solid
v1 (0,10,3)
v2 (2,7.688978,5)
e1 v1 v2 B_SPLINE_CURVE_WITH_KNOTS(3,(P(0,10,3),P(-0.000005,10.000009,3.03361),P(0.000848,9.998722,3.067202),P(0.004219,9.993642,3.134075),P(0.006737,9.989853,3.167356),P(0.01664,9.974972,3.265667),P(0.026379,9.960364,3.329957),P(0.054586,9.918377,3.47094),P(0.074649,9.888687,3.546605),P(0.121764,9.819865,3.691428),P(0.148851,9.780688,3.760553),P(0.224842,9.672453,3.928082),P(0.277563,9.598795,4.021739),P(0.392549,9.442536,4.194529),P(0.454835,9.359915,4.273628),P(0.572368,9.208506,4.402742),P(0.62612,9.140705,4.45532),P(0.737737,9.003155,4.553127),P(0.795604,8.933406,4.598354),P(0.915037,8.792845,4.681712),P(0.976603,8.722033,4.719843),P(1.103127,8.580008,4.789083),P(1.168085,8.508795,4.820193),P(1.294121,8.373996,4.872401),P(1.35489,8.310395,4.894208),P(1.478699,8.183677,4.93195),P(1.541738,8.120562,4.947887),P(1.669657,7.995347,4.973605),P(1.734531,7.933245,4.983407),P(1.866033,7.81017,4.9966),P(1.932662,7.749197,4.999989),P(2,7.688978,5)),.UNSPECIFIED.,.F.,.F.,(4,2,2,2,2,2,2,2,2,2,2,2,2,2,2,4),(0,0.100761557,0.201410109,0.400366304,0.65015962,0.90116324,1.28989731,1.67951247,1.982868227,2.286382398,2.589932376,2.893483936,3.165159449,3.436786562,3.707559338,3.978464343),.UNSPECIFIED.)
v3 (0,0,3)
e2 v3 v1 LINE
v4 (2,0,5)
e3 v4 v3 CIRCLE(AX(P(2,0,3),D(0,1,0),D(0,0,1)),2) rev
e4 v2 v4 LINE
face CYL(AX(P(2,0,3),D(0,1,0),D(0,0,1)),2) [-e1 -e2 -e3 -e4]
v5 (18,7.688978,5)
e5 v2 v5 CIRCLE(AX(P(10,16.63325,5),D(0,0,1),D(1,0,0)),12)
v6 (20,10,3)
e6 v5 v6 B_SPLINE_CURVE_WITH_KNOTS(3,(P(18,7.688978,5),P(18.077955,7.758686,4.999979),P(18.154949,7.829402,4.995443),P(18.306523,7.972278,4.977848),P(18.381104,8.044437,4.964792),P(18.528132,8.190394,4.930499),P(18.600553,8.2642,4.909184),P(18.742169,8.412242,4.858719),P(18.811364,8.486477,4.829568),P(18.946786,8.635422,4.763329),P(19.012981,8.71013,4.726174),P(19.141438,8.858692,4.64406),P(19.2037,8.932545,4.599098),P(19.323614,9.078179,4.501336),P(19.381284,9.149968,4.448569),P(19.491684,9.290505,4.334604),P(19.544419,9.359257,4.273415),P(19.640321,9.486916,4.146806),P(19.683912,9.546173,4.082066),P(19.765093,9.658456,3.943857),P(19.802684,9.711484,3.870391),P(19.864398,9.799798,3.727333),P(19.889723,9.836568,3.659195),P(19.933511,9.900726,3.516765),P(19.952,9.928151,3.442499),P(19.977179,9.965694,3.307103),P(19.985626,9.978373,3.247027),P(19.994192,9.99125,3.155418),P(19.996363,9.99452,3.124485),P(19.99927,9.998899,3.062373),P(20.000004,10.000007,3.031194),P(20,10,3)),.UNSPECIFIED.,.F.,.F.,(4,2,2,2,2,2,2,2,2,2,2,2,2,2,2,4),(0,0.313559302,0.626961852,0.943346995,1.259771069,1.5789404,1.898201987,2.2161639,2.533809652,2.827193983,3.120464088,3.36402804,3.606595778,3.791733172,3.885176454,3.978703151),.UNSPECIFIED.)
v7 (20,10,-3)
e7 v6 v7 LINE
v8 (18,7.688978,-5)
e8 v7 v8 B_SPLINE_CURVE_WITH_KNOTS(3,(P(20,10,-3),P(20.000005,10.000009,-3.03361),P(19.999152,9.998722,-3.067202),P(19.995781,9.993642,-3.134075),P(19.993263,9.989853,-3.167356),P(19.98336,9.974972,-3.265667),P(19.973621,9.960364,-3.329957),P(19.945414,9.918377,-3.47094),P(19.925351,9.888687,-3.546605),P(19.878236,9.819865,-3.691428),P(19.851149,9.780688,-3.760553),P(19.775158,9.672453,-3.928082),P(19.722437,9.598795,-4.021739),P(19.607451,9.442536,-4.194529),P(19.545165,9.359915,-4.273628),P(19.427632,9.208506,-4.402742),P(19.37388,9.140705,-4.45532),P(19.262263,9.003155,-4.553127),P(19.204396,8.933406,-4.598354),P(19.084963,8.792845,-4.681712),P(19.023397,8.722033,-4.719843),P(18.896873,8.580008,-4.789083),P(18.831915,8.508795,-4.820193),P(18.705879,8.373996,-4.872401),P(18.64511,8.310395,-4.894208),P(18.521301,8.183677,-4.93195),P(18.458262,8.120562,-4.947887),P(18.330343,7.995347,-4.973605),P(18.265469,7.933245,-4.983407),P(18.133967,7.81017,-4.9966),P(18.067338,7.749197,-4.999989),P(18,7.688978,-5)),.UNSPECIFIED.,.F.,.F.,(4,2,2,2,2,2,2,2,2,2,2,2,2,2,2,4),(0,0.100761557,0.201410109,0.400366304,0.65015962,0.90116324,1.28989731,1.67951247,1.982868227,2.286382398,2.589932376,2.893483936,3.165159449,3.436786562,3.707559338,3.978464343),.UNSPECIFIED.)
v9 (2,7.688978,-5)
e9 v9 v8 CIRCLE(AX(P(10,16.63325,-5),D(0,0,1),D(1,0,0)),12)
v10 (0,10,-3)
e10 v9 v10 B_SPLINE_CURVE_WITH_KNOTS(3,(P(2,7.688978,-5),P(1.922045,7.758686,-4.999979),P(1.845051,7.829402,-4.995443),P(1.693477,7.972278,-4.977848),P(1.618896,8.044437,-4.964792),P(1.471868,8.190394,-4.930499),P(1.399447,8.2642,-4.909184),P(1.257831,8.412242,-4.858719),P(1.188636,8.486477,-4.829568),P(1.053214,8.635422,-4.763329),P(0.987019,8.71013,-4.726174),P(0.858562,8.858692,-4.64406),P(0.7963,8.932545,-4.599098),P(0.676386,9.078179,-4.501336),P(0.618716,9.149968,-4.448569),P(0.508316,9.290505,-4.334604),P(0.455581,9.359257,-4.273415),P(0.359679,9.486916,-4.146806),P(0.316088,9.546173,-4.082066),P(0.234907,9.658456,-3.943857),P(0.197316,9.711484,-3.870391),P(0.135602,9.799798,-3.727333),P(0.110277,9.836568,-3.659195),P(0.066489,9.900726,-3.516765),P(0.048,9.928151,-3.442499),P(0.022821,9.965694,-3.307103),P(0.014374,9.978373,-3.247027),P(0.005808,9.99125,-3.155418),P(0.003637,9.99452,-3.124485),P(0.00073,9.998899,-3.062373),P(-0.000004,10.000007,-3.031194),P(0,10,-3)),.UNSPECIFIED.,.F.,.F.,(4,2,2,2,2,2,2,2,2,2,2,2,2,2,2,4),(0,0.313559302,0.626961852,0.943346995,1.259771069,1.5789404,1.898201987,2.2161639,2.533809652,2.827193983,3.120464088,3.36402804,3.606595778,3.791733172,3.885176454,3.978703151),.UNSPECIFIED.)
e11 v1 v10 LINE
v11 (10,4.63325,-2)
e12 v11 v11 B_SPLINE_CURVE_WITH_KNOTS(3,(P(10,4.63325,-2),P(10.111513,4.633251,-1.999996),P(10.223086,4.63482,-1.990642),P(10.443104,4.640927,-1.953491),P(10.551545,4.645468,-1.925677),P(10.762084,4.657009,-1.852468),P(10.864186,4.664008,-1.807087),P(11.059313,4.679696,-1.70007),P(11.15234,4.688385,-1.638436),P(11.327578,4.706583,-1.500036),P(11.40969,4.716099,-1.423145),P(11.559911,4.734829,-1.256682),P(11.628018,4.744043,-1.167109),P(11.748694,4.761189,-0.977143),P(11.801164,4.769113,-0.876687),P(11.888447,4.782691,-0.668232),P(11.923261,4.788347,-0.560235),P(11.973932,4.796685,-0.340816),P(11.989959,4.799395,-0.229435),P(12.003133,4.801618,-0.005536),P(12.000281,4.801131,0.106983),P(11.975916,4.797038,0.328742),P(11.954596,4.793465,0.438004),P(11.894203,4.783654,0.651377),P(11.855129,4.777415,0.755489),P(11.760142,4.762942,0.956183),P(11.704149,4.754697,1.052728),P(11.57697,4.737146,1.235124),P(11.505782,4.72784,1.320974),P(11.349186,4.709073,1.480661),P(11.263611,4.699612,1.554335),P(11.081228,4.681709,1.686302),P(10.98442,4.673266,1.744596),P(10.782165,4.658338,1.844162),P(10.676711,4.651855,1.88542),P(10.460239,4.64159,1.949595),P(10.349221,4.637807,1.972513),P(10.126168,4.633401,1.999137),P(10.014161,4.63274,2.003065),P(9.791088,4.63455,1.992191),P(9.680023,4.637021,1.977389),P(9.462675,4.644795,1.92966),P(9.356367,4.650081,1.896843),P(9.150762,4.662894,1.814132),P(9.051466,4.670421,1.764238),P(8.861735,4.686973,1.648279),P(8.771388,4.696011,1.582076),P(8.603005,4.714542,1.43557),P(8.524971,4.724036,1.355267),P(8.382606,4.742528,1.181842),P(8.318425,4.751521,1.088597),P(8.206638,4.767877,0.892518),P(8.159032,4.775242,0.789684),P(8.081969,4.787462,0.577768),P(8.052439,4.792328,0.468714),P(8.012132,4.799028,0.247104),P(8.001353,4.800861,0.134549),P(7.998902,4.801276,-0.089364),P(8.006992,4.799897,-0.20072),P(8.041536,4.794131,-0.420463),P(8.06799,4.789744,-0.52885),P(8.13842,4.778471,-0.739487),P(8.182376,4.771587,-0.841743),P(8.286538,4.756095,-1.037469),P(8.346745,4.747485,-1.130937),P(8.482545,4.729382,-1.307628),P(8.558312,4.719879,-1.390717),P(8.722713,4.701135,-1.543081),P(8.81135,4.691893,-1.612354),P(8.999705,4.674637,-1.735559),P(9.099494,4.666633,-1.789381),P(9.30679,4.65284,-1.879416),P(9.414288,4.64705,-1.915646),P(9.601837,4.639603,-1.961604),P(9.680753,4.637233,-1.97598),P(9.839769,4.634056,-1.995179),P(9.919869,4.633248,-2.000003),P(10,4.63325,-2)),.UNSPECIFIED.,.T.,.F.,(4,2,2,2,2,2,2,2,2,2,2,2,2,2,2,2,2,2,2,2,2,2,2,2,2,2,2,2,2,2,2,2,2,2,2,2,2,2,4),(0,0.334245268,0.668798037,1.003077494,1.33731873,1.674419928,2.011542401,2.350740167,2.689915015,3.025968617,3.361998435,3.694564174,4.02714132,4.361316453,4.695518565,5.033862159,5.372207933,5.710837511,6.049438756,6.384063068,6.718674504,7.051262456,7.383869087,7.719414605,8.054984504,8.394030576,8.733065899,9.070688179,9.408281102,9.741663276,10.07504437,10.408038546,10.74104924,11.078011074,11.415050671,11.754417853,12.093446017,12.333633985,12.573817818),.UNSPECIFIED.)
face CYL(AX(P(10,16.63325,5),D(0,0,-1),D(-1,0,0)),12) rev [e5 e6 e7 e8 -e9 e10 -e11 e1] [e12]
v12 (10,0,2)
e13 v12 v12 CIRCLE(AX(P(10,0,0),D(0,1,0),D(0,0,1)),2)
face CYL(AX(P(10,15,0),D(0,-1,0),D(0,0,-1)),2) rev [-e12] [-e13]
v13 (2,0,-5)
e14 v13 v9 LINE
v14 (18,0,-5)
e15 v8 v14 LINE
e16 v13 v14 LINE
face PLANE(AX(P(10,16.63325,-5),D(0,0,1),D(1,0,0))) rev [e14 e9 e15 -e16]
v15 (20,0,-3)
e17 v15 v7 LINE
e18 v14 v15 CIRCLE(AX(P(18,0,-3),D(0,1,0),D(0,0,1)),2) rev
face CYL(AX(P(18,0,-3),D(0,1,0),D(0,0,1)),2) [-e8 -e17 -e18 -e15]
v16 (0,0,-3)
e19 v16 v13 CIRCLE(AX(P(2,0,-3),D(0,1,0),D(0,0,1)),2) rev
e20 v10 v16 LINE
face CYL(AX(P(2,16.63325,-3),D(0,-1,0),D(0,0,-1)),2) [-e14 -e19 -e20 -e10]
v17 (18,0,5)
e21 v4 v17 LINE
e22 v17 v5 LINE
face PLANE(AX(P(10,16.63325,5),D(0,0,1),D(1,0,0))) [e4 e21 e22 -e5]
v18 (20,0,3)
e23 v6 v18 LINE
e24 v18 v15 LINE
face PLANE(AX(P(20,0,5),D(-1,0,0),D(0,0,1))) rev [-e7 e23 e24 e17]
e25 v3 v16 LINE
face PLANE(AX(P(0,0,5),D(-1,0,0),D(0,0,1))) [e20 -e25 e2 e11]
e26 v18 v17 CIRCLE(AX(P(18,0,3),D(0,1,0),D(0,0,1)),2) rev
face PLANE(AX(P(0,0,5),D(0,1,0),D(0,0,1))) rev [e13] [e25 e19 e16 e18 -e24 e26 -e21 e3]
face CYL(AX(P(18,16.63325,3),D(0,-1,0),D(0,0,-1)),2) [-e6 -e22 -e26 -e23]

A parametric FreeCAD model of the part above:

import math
import FreeCAD as App
import Part
import Sketcher
Q = App.Units.Quantity


def edges_at(feature, points):
    """Names of the edges that pass closest to the given points."""
    edges = feature.Shape.Edges
    near = lambda p: min(range(len(edges)), key=lambda i: edges[i].distToShape(Part.Vertex(*p))[0])
    return sorted({f"Edge{near(p) + 1}" for p in points})

doc = App.newDocument("Part")
body = doc.addObject("PartDesign::Body", "Body")

# Sketch on XY plane
sketch1 = body.newObject("Sketcher::SketchObject", "Sketch")
sketch1.AttachmentSupport = (doc.getObject("XY_Plane"), [""])
sketch1.MapMode = "FlatFace"
sketch1.addGeometry(Part.LineSegment(App.Vector(0, 0, 0), App.Vector(20, 0, 0)), False)
sketch1.addGeometry(Part.LineSegment(App.Vector(20, 0, 0), App.Vector(20, 10, 0)), False)
sketch1.addGeometry(Part.ArcOfCircle(Part.Circle(App.Vector(10, 17, 0), App.Vector(0, 0, 1), 12), math.radians(-146), math.radians(-34)), False)
sketch1.addGeometry(Part.LineSegment(App.Vector(0, 10, 0), App.Vector(0, 0, 0)), False)
sketch1.addConstraint(Sketcher.Constraint("Coincident", 0, 2, 1, 1))
sketch1.addConstraint(Sketcher.Constraint("Coincident", 1, 2, 2, 2))
sketch1.addConstraint(Sketcher.Constraint("Coincident", 2, 1, 3, 1))
sketch1.addConstraint(Sketcher.Constraint("Coincident", 3, 2, 0, 1))
sketch1.addConstraint(Sketcher.Constraint("Horizontal", 0))
sketch1.addConstraint(Sketcher.Constraint("Vertical", 1))
sketch1.addConstraint(Sketcher.Constraint("Vertical", 3))
sketch1.addConstraint(Sketcher.Constraint("Coincident", 3, 2, -1, 1))
sketch1.addConstraint(Sketcher.Constraint("Horizontal", 1, 2, 2, 1))
sketch1.addConstraint(Sketcher.Constraint("Radius", 2, Q("12 mm")))
sketch1.addConstraint(Sketcher.Constraint("DistanceX", 0, 1, 0, 2, Q("20 mm")))
sketch1.addConstraint(Sketcher.Constraint("DistanceY", 1, 1, 1, 2, Q("10 mm")))
pad1 = body.newObject("PartDesign::Pad", "Pad")
pad1.Profile = sketch1
pad1.Length = 10
pad1.Midplane = True

# Sketch on XZ plane
sketch2 = body.newObject("Sketcher::SketchObject", "Sketch001")
sketch2.AttachmentSupport = (doc.getObject("XZ_Plane"), [""])
sketch2.MapMode = "FlatFace"
sketch2.addGeometry(Part.Circle(App.Vector(10, 0, 0), App.Vector(0, 0, 1), 2), False)
sketch2.addConstraint(Sketcher.Constraint("PointOnObject", 0, 3, -1))
sketch2.addConstraint(Sketcher.Constraint("Diameter", 0, Q("4 mm")))
sketch2.addConstraint(Sketcher.Constraint("DistanceX", -1, 1, 0, 3, Q("10 mm")))
pocket1 = body.newObject("PartDesign::Pocket", "Pocket")
pocket1.Profile = sketch2
pocket1.Length = 15
doc.recompute()

fillet = body.newObject("PartDesign::Fillet", "Fillet")
fillet.Base = (pocket1, edges_at(pocket1, [
    (20, 5, 5),
    (0, 5, 5),
    (20, 5, -5),
    (0, 5, -5),
]))
fillet.Radius = 2

doc.recompute()
